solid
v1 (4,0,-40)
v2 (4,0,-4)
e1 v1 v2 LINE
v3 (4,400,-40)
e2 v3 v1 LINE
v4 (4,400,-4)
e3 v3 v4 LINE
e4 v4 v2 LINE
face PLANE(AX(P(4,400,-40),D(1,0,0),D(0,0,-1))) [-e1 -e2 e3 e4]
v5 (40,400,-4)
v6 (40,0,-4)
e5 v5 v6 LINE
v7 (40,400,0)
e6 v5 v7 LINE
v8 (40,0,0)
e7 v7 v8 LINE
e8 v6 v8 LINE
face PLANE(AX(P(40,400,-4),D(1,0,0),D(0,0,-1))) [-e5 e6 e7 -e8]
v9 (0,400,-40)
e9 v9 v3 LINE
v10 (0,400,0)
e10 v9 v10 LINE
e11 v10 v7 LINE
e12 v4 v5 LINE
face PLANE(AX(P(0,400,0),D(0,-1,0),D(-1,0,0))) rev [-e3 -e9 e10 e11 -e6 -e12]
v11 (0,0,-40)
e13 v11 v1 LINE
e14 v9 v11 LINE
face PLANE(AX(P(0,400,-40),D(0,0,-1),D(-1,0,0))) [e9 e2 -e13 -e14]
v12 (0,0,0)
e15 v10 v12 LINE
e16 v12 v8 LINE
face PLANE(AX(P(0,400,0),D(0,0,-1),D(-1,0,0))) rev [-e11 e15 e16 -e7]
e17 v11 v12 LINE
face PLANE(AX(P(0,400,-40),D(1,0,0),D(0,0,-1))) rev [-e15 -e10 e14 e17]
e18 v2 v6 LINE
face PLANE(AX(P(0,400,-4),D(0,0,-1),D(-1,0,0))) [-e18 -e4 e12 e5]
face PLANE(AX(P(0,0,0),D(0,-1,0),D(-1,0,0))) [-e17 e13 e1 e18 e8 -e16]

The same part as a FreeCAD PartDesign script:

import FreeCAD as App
import Part
import Sketcher
Q = App.Units.Quantity

doc = App.newDocument("Part")
body = doc.addObject("PartDesign::Body", "Body")

sketch1 = body.newObject("Sketcher::SketchObject", "Sketch")
sketch1.AttachmentSupport = (doc.getObject("XZ_Plane"), [""])
sketch1.MapMode = "FlatFace"
sketch1.addGeometry(Part.LineSegment(App.Vector(0, -40, 0), App.Vector(0, 0, 0)), False)
sketch1.addGeometry(Part.LineSegment(App.Vector(0, 0, 0), App.Vector(40, 0, 0)), False)
sketch1.addGeometry(Part.LineSegment(App.Vector(40, 0, 0), App.Vector(40, -4, 0)), False)
sketch1.addGeometry(Part.LineSegment(App.Vector(40, -4, 0), App.Vector(4, -4, 0)), False)
sketch1.addGeometry(Part.LineSegment(App.Vector(4, -4, 0), App.Vector(4, -40, 0)), False)
sketch1.addGeometry(Part.LineSegment(App.Vector(4, -40, 0), App.Vector(0, -40, 0)), False)
sketch1.addConstraint(Sketcher.Constraint("Coincident", 0, 2, 1, 1))
sketch1.addConstraint(Sketcher.Constraint("Coincident", 1, 2, 2, 1))
sketch1.addConstraint(Sketcher.Constraint("Coincident", 2, 2, 3, 1))
sketch1.addConstraint(Sketcher.Constraint("Coincident", 3, 2, 4, 1))
sketch1.addConstraint(Sketcher.Constraint("Coincident", 4, 2, 5, 1))
sketch1.addConstraint(Sketcher.Constraint("Coincident", 5, 2, 0, 1))
sketch1.addConstraint(Sketcher.Constraint("Vertical", 0))
sketch1.addConstraint(Sketcher.Constraint("Horizontal", 1))
sketch1.addConstraint(Sketcher.Constraint("Vertical", 2))
sketch1.addConstraint(Sketcher.Constraint("Horizontal", 3))
sketch1.addConstraint(Sketcher.Constraint("Vertical", 4))
sketch1.addConstraint(Sketcher.Constraint("Horizontal", 5))
sketch1.addConstraint(Sketcher.Constraint("Coincident", 0, 2, -1, 1))
sketch1.addConstraint(Sketcher.Constraint("Equal", 1, 0))
sketch1.addConstraint(Sketcher.Constraint("Equal", 5, 2))
sketch1.addConstraint(Sketcher.Constraint("DistanceX", 1, 1, 1, 2, Q("40 mm")))
sketch1.addConstraint(Sketcher.Constraint("DistanceX", 3, 2, 3, 1, Q("36 mm")))
pad1 = body.newObject("PartDesign::Pad", "Pad")
pad1.Profile = sketch1
pad1.Length = 400
pad1.Reversed = True

doc.recompute()
